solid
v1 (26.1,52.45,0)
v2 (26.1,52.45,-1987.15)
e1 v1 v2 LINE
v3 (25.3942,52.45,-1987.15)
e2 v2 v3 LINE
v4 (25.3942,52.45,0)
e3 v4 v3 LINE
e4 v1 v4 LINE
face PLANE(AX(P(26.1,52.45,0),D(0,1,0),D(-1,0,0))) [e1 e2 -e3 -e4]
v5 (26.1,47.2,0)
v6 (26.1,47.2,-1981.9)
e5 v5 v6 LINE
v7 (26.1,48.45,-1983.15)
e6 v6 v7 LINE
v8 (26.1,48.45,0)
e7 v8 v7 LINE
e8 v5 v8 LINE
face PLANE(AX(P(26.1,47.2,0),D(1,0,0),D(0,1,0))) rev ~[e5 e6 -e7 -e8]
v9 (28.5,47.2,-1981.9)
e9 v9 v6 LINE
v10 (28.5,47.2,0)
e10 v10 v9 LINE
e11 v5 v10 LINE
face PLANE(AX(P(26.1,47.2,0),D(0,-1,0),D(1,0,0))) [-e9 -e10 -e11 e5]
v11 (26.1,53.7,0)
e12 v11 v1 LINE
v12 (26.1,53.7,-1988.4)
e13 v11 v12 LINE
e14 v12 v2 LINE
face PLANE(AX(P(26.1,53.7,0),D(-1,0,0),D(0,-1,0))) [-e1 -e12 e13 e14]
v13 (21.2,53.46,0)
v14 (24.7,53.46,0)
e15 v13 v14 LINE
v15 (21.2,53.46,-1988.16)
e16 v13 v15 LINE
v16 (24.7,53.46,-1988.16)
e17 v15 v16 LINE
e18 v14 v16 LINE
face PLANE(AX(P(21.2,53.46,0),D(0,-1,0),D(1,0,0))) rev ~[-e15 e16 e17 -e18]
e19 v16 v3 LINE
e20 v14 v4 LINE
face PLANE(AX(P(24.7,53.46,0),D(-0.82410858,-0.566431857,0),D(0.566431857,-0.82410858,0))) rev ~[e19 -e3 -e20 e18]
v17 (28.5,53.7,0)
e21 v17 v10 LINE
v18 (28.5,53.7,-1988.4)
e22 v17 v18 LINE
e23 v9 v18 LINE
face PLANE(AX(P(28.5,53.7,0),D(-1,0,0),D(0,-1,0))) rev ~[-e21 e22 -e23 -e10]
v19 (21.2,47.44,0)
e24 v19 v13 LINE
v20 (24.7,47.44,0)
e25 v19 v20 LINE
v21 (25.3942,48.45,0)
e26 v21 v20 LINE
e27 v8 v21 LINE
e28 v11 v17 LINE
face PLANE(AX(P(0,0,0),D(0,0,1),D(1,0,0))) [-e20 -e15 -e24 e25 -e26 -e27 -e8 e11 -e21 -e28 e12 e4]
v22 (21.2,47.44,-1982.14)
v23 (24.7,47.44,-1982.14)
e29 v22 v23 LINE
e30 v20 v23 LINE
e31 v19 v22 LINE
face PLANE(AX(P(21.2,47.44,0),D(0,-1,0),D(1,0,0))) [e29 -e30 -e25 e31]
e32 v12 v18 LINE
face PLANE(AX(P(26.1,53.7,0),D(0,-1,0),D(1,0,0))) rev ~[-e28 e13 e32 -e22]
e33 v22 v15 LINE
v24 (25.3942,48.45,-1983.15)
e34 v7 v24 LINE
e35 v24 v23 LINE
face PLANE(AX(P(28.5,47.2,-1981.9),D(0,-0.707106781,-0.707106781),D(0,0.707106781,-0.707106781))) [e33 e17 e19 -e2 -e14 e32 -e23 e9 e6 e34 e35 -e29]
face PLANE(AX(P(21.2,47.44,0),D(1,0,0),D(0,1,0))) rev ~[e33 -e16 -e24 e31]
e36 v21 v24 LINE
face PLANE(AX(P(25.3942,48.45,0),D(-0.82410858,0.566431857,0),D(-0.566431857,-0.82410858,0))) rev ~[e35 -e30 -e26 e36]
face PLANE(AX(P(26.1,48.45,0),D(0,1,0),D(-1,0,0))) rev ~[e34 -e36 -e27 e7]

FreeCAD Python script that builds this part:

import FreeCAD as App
import Part
import Sketcher
from FreeCAD import Vector
Q = App.Units.Quantity


def add_polygon(sketch, points):
    """Adds a closed chain of lines whose ends are joined by coincident constraints."""
    first, n = sketch.GeometryCount, len(points)
    for a, b in zip(points, points[1:] + points[:1]):
        sketch.addGeometry(Part.LineSegment(App.Vector(*a, 0), App.Vector(*b, 0)), False)
    for i in range(n):
        sketch.addConstraint(Sketcher.Constraint("Coincident", first + i, 2, first + (i + 1) % n, 1))

doc = App.newDocument("Part")
params = doc.addObject("Spreadsheet::Sheet", "Params")
for row, (alias, value) in enumerate([
    ("sketch1_width", "2.4 mm"),
    ("sketch1_width2", "3.5 mm"),
    ("sketch1_height", "6.5 mm"),
    ("sketch1_height2", "6.02 mm"),
    ("pad1_length", "1988.4 mm"),
    ("sketch2_width", "6.5 mm"),
], start=1):
    params.set(f"A{row}", alias)
    params.set(f"B{row}", "=" + value)
    params.setAlias(f"B{row}", alias)

body = doc.addObject("PartDesign::Body", "Body")

sketch1 = body.newObject("Sketcher::SketchObject", "Sketch")
sketch1.AttachmentSupport = (doc.getObject("XY_Plane"), [""])
sketch1.MapMode = "FlatFace"
add_polygon(sketch1, [(28.5, 47.2), (28.5, 53.7), (26.1, 53.7), (26.1, 52.5), (25.4, 52.5), (24.7, 53.5), (21.2, 53.5), (21.2, 47.4), (24.7, 47.4), (25.4, 48.5), (26.1, 48.5), (26.1, 47.2)])
sketch1.addConstraint(Sketcher.Constraint("Vertical", 0))
sketch1.addConstraint(Sketcher.Constraint("Horizontal", 1))
sketch1.addConstraint(Sketcher.Constraint("Vertical", 2))
sketch1.addConstraint(Sketcher.Constraint("Horizontal", 3))
sketch1.addConstraint(Sketcher.Constraint("Horizontal", 5))
sketch1.addConstraint(Sketcher.Constraint("Vertical", 6))
sketch1.addConstraint(Sketcher.Constraint("Horizontal", 7))
sketch1.addConstraint(Sketcher.Constraint("Horizontal", 9))
sketch1.addConstraint(Sketcher.Constraint("Vertical", 10))
sketch1.addConstraint(Sketcher.Constraint("Horizontal", 11))
sketch1.addConstraint(Sketcher.Constraint("Vertical", 4, 2, 7, 2))
sketch1.addConstraint(Sketcher.Constraint("Vertical", 3, 2, 8, 2))
sketch1.addConstraint(Sketcher.Constraint("Vertical", 2, 2, 9, 2))
sketch1.addConstraint(Sketcher.Constraint("Equal", 2, 10))
sketch1.addConstraint(Sketcher.Constraint("Equal", 4, 8))
sketch1.addConstraint(Sketcher.Constraint("DistanceX", 1, 2, 1, 1, Q("2.4 mm")))
sketch1.addConstraint(Sketcher.Constraint("DistanceX", 5, 2, 5, 1, Q("3.5 mm")))
sketch1.addConstraint(Sketcher.Constraint("DistanceY", 0, 1, 0, 2, Q("6.5 mm")))
sketch1.addConstraint(Sketcher.Constraint("DistanceY", 8, 2, 3, 2, Q("4 mm")))
sketch1.addConstraint(Sketcher.Constraint("DistanceX", 3, 2, 3, 1, Q("0.7058 mm")))
sketch1.addConstraint(Sketcher.Constraint("DistanceY", 6, 2, 6, 1, Q("6.02 mm")))
sketch1.addConstraint(Sketcher.Constraint("DistanceX", -1, 1, 0, 2, Q("28.5 mm")))
sketch1.addConstraint(Sketcher.Constraint("DistanceY", -1, 1, 0, 2, Q("53.7 mm")))
sketch1.addConstraint(Sketcher.Constraint("DistanceX", -1, 1, 4, 2, Q("24.7 mm")))
sketch1.setExpression("Constraints[27]", "Params.sketch1_width")
sketch1.setExpression("Constraints[28]", "Params.sketch1_width2")
sketch1.setExpression("Constraints[29]", "Params.sketch1_height")
sketch1.setExpression("Constraints[32]", "Params.sketch1_height2")
pad1 = body.newObject("PartDesign::Pad", "Pad")
pad1.Profile = sketch1
pad1.setExpression("Length", "Params.pad1_length")
pad1.Reversed = True

sketch2 = body.newObject("Sketcher::SketchObject", "Sketch001")
sketch2.AttachmentSupport = (doc.getObject("YZ_Plane"), [""])
sketch2.MapMode = "FlatFace"
sketch2.AttachmentOffset = App.Placement(Vector(0, 0, 28.5), App.Rotation())
add_polygon(sketch2, [(47, -1982), (54, -1988), (47, -1988)])
sketch2.addConstraint(Sketcher.Constraint("Horizontal", 1))
sketch2.addConstraint(Sketcher.Constraint("Vertical", 2))
sketch2.addConstraint(Sketcher.Constraint("Equal", 1, 2))
sketch2.addConstraint(Sketcher.Constraint("DistanceX", 1, 2, 1, 1, Q("6.5 mm")))
sketch2.addConstraint(Sketcher.Constraint("DistanceX", -1, 1, 0, 2, Q("53.7 mm")))
sketch2.addConstraint(Sketcher.Constraint("DistanceY", 0, 2, -1, 1, Q("1988.4 mm")))
sketch2.setExpression("Constraints[6]", "Params.sketch2_width")
pocket1 = body.newObject("PartDesign::Pocket", "Pocket")
pocket1.Profile = sketch2
pocket1.Type = "ThroughAll"

doc.recompute()
